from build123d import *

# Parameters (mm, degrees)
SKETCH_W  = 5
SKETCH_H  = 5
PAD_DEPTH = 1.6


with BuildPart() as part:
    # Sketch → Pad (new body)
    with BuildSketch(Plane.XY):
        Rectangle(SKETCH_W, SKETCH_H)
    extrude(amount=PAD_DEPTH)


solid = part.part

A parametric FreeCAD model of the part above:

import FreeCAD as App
import Part
import Sketcher
from FreeCAD import Vector
Q = App.Units.Quantity

doc = App.newDocument("Part")
params = doc.addObject("Spreadsheet::Sheet", "Params")
for row, (alias, value) in enumerate([
    ("sketch1_width", "5 mm"),
    ("pad1_length", "1.6 mm"),
], start=1):
    params.set(f"A{row}", alias)
    params.set(f"B{row}", "=" + value)
    params.setAlias(f"B{row}", alias)

body = doc.addObject("PartDesign::Body", "Body")

# Sketch on XY plane
sketch1 = doc.addObject("Sketcher::SketchObject", "Sketch")
body.addObject(sketch1)
sketch1.AttachmentSupport = (doc.XY_Plane, [""])
sketch1.MapMode = "FlatFace"
sketch1.addGeometry(Part.LineSegment(Vector(-2, 2, 0), Vector(-2, -2, 0)), False)
sketch1.addGeometry(Part.LineSegment(Vector(-2, -2, 0), Vector(2, -2, 0)), False)
sketch1.addGeometry(Part.LineSegment(Vector(2, -2, 0), Vector(2, 2, 0)), False)
sketch1.addGeometry(Part.LineSegment(Vector(2, 2, 0), Vector(-2, 2, 0)), False)
sketch1.addConstraint(Sketcher.Constraint("Coincident", 0, 2, 1, 1))
sketch1.addConstraint(Sketcher.Constraint("Coincident", 1, 2, 2, 1))
sketch1.addConstraint(Sketcher.Constraint("Coincident", 2, 2, 3, 1))
sketch1.addConstraint(Sketcher.Constraint("Coincident", 3, 2, 0, 1))
sketch1.addConstraint(Sketcher.Constraint("Vertical", 0))
sketch1.addConstraint(Sketcher.Constraint("Horizontal", 1))
sketch1.addConstraint(Sketcher.Constraint("Vertical", 2))
sketch1.addConstraint(Sketcher.Constraint("Horizontal", 3))
sketch1.addConstraint(Sketcher.Constraint("Symmetric", 0, 2, 2, 2, -1, 1))
sketch1.addConstraint(Sketcher.Constraint("Equal", 3, 0))
sketch1.addConstraint(Sketcher.Constraint("DistanceX", 1, 1, 1, 2, Q("5 mm")))
sketch1.setExpression("Constraints[10]", "Params.sketch1_width")
pad1 = doc.addObject("PartDesign::Pad", "Pad")
body.addObject(pad1)
pad1.Profile = sketch1
pad1.setExpression("Length", "Params.pad1_length")

doc.recompute()
